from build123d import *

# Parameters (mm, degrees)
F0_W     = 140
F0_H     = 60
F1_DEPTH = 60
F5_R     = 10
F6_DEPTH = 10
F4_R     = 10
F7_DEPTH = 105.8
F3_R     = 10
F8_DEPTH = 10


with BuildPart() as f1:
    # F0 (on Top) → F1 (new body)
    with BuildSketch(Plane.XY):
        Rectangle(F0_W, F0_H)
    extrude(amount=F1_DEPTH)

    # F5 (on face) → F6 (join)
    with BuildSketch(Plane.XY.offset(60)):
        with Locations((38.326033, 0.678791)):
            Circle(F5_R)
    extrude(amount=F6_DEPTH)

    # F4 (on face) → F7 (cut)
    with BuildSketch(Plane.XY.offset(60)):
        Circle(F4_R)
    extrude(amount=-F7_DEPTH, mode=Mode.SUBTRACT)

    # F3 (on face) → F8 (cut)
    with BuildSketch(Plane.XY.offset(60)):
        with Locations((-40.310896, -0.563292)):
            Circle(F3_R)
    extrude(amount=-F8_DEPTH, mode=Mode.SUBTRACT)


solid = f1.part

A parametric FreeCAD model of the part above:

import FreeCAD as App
import Part
import Sketcher

V = App.Vector
Q = App.Units.Quantity

doc = App.newDocument("Part")
params = doc.addObject("Spreadsheet::Sheet", "Params")
for row, (alias, value) in enumerate([
    ("sketch1_width", "140 mm"),
    ("sketch1_height", "60 mm"),
    ("pad1_length", "60 mm"),
    ("sketch2_diameter", "20 mm"),
    ("pad2_length", "10 mm"),
    ("sketch3_diameter", "20 mm"),
    ("pocket1_length", "105.8 mm"),
    ("sketch4_diameter", "20 mm"),
    ("pocket2_length", "10 mm"),
], start=1):
    params.set(f"A{row}", alias)
    params.set(f"B{row}", "=" + value)
    params.setAlias(f"B{row}", alias)

body = doc.addObject("PartDesign::Body", "Body")

# Sketch on XY plane
sketch1 = body.newObject("Sketcher::SketchObject", "Sketch")
sketch1.AttachmentSupport = (doc.getObject("XY_Plane"), [""])
sketch1.MapMode = "FlatFace"
sketch1.addGeometry(Part.LineSegment(V(-70, 30, 0), V(-70, -30, 0)), False)
sketch1.addGeometry(Part.LineSegment(V(-70, -30, 0), V(70, -30, 0)), False)
sketch1.addGeometry(Part.LineSegment(V(70, -30, 0), V(70, 30, 0)), False)
sketch1.addGeometry(Part.LineSegment(V(70, 30, 0), V(-70, 30, 0)), False)
sketch1.addConstraint(Sketcher.Constraint("Coincident", 0, 2, 1, 1))
sketch1.addConstraint(Sketcher.Constraint("Coincident", 1, 2, 2, 1))
sketch1.addConstraint(Sketcher.Constraint("Coincident", 2, 2, 3, 1))
sketch1.addConstraint(Sketcher.Constraint("Coincident", 3, 2, 0, 1))
sketch1.addConstraint(Sketcher.Constraint("Vertical", 0))
sketch1.addConstraint(Sketcher.Constraint("Horizontal", 1))
sketch1.addConstraint(Sketcher.Constraint("Vertical", 2))
sketch1.addConstraint(Sketcher.Constraint("Horizontal", 3))
sketch1.addConstraint(Sketcher.Constraint("Symmetric", 0, 2, 2, 2, -1, 1))
sketch1.addConstraint(Sketcher.Constraint("DistanceX", 1, 1, 1, 2, Q("140 mm")))
sketch1.addConstraint(Sketcher.Constraint("DistanceY", 0, 2, 0, 1, Q("60 mm")))
sketch1.setExpression("Constraints[9]", "Params.sketch1_width")
sketch1.setExpression("Constraints[10]", "Params.sketch1_height")
pad1 = body.newObject("PartDesign::Pad", "Pad")
pad1.Profile = sketch1
pad1.setExpression("Length", "Params.pad1_length")

# Sketch on XY plane
sketch2 = body.newObject("Sketcher::SketchObject", "Sketch001")
sketch2.AttachmentSupport = (doc.getObject("XY_Plane"), [""])
sketch2.MapMode = "FlatFace"
sketch2.AttachmentOffset = App.Placement(V(0, 0, 60), App.Rotation())
sketch2.addGeometry(Part.Circle(V(38, 1, 0), V(0, 0, 1), 10), False)
sketch2.addConstraint(Sketcher.Constraint("Diameter", 0, Q("20 mm")))
sketch2.addConstraint(Sketcher.Constraint("DistanceY", -1, 1, 0, 3, Q("0.678791 mm")))
sketch2.addConstraint(Sketcher.Constraint("DistanceX", -1, 1, 0, 3, Q("38.326033 mm")))
sketch2.setExpression("Constraints[0]", "Params.sketch2_diameter")
pad2 = body.newObject("PartDesign::Pad", "Pad001")
pad2.Profile = sketch2
pad2.setExpression("Length", "Params.pad2_length")

# Sketch on XY plane
sketch3 = body.newObject("Sketcher::SketchObject", "Sketch002")
sketch3.AttachmentSupport = (doc.getObject("XY_Plane"), [""])
sketch3.MapMode = "FlatFace"
sketch3.AttachmentOffset = App.Placement(V(0, 0, 60), App.Rotation())
sketch3.addGeometry(Part.Circle(V(0, 0, 0), V(0, 0, 1), 10), False)
sketch3.addConstraint(Sketcher.Constraint("Coincident", 0, 3, -1, 1))
sketch3.addConstraint(Sketcher.Constraint("Diameter", 0, Q("20 mm")))
sketch3.setExpression("Constraints[1]", "Params.sketch3_diameter")
pocket1 = body.newObject("PartDesign::Pocket", "Pocket")
pocket1.Profile = sketch3
pocket1.setExpression("Length", "Params.pocket1_length")

# Sketch on XY plane
sketch4 = body.newObject("Sketcher::SketchObject", "Sketch003")
sketch4.AttachmentSupport = (doc.getObject("XY_Plane"), [""])
sketch4.MapMode = "FlatFace"
sketch4.AttachmentOffset = App.Placement(V(0, 0, 60), App.Rotation())
sketch4.addGeometry(Part.Circle(V(-40, -1, 0), V(0, 0, 1), 10), False)
sketch4.addConstraint(Sketcher.Constraint("Diameter", 0, Q("20 mm")))
sketch4.addConstraint(Sketcher.Constraint("DistanceX", 0, 3, -1, 1, Q("40.310896 mm")))
sketch4.addConstraint(Sketcher.Constraint("DistanceY", 0, 3, -1, 1, Q("0.563292 mm")))
sketch4.setExpression("Constraints[0]", "Params.sketch4_diameter")
pocket2 = body.newObject("PartDesign::Pocket", "Pocket001")
pocket2.Profile = sketch4
pocket2.setExpression("Length", "Params.pocket2_length")

doc.recompute()
